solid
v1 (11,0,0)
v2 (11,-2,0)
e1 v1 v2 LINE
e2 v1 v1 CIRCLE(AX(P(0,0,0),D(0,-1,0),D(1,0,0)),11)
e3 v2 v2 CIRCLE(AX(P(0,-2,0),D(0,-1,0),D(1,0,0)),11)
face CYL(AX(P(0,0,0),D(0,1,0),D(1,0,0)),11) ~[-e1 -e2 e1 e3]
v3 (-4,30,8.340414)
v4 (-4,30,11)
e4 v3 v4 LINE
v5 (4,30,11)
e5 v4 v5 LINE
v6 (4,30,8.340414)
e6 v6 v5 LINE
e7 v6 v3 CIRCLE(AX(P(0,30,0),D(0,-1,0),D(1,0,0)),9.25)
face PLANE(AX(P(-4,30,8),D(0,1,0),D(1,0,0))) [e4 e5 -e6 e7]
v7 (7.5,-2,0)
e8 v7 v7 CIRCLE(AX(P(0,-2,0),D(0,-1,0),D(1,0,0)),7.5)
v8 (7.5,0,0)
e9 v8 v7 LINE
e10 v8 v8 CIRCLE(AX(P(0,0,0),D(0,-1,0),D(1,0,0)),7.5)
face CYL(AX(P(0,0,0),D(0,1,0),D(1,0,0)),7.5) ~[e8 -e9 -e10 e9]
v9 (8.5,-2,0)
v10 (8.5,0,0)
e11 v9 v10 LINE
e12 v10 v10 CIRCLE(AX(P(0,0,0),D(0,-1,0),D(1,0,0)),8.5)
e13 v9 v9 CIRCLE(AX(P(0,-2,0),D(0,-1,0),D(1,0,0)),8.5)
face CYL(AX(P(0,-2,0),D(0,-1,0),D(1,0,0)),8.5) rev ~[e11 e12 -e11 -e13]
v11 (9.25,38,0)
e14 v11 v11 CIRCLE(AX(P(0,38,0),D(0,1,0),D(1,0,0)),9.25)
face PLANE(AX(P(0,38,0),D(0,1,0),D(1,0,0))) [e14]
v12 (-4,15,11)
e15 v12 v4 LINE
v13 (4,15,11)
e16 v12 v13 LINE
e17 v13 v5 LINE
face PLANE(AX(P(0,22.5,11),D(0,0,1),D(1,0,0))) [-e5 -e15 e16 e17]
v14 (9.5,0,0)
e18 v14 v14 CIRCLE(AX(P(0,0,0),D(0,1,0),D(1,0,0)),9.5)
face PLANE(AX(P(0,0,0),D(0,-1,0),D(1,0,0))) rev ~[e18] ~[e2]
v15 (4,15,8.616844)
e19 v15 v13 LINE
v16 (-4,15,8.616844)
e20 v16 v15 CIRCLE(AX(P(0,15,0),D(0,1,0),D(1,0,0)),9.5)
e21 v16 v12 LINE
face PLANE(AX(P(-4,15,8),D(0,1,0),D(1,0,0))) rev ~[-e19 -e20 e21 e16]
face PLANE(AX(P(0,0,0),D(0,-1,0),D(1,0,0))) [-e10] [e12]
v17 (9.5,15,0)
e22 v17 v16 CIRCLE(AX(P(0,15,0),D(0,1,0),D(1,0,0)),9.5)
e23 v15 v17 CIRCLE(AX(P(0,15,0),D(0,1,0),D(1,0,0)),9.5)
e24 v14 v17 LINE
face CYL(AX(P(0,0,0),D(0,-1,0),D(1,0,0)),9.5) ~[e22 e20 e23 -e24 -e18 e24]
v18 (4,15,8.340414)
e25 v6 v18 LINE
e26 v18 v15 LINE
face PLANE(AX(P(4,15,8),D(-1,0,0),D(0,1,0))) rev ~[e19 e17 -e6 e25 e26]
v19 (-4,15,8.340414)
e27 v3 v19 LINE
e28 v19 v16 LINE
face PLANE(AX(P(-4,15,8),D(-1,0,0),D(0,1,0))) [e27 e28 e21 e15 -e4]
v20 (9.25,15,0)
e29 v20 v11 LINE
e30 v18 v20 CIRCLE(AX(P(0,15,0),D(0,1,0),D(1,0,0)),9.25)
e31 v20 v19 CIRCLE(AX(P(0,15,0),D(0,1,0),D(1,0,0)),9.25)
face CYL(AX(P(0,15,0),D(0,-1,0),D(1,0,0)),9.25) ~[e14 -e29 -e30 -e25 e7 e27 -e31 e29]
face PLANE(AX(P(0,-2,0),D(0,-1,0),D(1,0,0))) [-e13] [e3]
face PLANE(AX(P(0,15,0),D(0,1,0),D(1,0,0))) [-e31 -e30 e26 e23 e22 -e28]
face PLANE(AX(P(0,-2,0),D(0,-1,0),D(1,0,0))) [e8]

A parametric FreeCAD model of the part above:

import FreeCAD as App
import Part
import Sketcher

V = App.Vector
Q = App.Units.Quantity

doc = App.newDocument("Part")
body = doc.addObject("PartDesign::Body", "Body")

sketch1 = body.newObject("Sketcher::SketchObject", "Sketch")
sketch1.AttachmentSupport = (doc.getObject("XY_Plane"), [""])
sketch1.MapMode = "FlatFace"
sketch1.AttachmentOffset = App.Placement(V(0, 0, 8), App.Rotation())
sketch1.addGeometry([
    Part.LineSegment(V(-4, 30, 0), V(-4, 15, 0)),
    Part.LineSegment(V(-4, 15, 0), V(4, 15, 0)),
    Part.LineSegment(V(4, 15, 0), V(4, 30, 0)),
    Part.LineSegment(V(4, 30, 0), V(-4, 30, 0)),
], False)
sketch1.addConstraint([
    Sketcher.Constraint("Coincident", 0, 2, 1, 1),
    Sketcher.Constraint("Coincident", 1, 2, 2, 1),
    Sketcher.Constraint("Coincident", 2, 2, 3, 1),
    Sketcher.Constraint("Coincident", 3, 2, 0, 1),
    Sketcher.Constraint("Vertical", 0),
    Sketcher.Constraint("Horizontal", 1),
    Sketcher.Constraint("Vertical", 2),
    Sketcher.Constraint("Horizontal", 3),
    Sketcher.Constraint("DistanceX", 1, 1, 1, 2, Q("8 mm")),
    Sketcher.Constraint("DistanceY", 0, 2, 0, 1, Q("15 mm")),
    Sketcher.Constraint("DistanceX", 0, 2, -1, 1, Q("4 mm")),
    Sketcher.Constraint("DistanceY", -1, 1, 0, 2, Q("15 mm")),
])
pad1 = body.newObject("PartDesign::Pad", "Pad")
pad1.Profile = sketch1
pad1.Length = 3
body2 = doc.addObject("PartDesign::Body", "Body001")

sketch2 = body2.newObject("Sketcher::SketchObject", "Sketch001")
sketch2.AttachmentSupport = (doc.getObject("XZ_Plane001"), [""])
sketch2.MapMode = "FlatFace"
sketch2.addGeometry(Part.Circle(V(0, 0, 0), V(0, 0, 1), 11), False)
sketch2.addConstraint([
    Sketcher.Constraint("Coincident", 0, 3, -1, 1),
    Sketcher.Constraint("Diameter", 0, Q("22 mm")),
])
pad2 = body2.newObject("PartDesign::Pad", "Pad001")
pad2.Profile = sketch2
pad2.Length = 2

sketch3 = body2.newObject("Sketcher::SketchObject", "Sketch002")
sketch3.AttachmentSupport = (doc.getObject("XZ_Plane001"), [""])
sketch3.MapMode = "FlatFace"
sketch3.addGeometry(Part.Circle(V(0, 0, 0), V(0, 0, 1), 10), False)
sketch3.addConstraint([
    Sketcher.Constraint("Coincident", 0, 3, -1, 1),
    Sketcher.Constraint("Diameter", 0, Q("19 mm")),
])
pad3 = body2.newObject("PartDesign::Pad", "Pad002")
pad3.Profile = sketch3
pad3.Length = 15
pad3.Reversed = True

sketch4 = body2.newObject("Sketcher::SketchObject", "Sketch003")
sketch4.AttachmentSupport = (doc.getObject("XZ_Plane001"), [""])
sketch4.MapMode = "FlatFace"
sketch4.AttachmentOffset = App.Placement(V(0, 0, -15), App.Rotation())
sketch4.addGeometry(Part.Circle(V(0, 0, 0), V(0, 0, 1), 9), False)
sketch4.addConstraint([
    Sketcher.Constraint("Coincident", 0, 3, -1, 1),
    Sketcher.Constraint("Diameter", 0, Q("18.5 mm")),
])
pad4 = body2.newObject("PartDesign::Pad", "Pad003")
pad4.Profile = sketch4
pad4.Length = 23
pad4.Reversed = True

sketch5 = body2.newObject("Sketcher::SketchObject", "Sketch004")
sketch5.AttachmentSupport = (doc.getObject("XZ_Plane001"), [""])
sketch5.MapMode = "FlatFace"
sketch5.AttachmentOffset = App.Placement(V(0, 0, 2), App.Rotation())
sketch5.addGeometry(Part.Circle(V(0, 0, 0), V(0, 0, 1), 8), False)
sketch5.addConstraint([
    Sketcher.Constraint("Coincident", 0, 3, -1, 1),
    Sketcher.Constraint("Diameter", 0, Q("17 mm")),
])
pocket1 = body2.newObject("PartDesign::Pocket", "Pocket")
pocket1.Profile = sketch5
pocket1.Length = 2

sketch6 = body2.newObject("Sketcher::SketchObject", "Sketch005")
sketch6.AttachmentSupport = (doc.getObject("XZ_Plane001"), [""])
sketch6.MapMode = "FlatFace"
sketch6.addGeometry(Part.Circle(V(0, 0, 0), V(0, 0, 1), 8), False)
sketch6.addConstraint([
    Sketcher.Constraint("Coincident", 0, 3, -1, 1),
    Sketcher.Constraint("Diameter", 0, Q("15 mm")),
])
pad5 = body2.newObject("PartDesign::Pad", "Pad004")
pad5.Profile = sketch6
pad5.Length = 2
doc.recompute()

boolean = body2.newObject("PartDesign::Boolean", "Boolean")
boolean.Type = "Fuse"
boolean.addObjects([body])

doc.recompute()
